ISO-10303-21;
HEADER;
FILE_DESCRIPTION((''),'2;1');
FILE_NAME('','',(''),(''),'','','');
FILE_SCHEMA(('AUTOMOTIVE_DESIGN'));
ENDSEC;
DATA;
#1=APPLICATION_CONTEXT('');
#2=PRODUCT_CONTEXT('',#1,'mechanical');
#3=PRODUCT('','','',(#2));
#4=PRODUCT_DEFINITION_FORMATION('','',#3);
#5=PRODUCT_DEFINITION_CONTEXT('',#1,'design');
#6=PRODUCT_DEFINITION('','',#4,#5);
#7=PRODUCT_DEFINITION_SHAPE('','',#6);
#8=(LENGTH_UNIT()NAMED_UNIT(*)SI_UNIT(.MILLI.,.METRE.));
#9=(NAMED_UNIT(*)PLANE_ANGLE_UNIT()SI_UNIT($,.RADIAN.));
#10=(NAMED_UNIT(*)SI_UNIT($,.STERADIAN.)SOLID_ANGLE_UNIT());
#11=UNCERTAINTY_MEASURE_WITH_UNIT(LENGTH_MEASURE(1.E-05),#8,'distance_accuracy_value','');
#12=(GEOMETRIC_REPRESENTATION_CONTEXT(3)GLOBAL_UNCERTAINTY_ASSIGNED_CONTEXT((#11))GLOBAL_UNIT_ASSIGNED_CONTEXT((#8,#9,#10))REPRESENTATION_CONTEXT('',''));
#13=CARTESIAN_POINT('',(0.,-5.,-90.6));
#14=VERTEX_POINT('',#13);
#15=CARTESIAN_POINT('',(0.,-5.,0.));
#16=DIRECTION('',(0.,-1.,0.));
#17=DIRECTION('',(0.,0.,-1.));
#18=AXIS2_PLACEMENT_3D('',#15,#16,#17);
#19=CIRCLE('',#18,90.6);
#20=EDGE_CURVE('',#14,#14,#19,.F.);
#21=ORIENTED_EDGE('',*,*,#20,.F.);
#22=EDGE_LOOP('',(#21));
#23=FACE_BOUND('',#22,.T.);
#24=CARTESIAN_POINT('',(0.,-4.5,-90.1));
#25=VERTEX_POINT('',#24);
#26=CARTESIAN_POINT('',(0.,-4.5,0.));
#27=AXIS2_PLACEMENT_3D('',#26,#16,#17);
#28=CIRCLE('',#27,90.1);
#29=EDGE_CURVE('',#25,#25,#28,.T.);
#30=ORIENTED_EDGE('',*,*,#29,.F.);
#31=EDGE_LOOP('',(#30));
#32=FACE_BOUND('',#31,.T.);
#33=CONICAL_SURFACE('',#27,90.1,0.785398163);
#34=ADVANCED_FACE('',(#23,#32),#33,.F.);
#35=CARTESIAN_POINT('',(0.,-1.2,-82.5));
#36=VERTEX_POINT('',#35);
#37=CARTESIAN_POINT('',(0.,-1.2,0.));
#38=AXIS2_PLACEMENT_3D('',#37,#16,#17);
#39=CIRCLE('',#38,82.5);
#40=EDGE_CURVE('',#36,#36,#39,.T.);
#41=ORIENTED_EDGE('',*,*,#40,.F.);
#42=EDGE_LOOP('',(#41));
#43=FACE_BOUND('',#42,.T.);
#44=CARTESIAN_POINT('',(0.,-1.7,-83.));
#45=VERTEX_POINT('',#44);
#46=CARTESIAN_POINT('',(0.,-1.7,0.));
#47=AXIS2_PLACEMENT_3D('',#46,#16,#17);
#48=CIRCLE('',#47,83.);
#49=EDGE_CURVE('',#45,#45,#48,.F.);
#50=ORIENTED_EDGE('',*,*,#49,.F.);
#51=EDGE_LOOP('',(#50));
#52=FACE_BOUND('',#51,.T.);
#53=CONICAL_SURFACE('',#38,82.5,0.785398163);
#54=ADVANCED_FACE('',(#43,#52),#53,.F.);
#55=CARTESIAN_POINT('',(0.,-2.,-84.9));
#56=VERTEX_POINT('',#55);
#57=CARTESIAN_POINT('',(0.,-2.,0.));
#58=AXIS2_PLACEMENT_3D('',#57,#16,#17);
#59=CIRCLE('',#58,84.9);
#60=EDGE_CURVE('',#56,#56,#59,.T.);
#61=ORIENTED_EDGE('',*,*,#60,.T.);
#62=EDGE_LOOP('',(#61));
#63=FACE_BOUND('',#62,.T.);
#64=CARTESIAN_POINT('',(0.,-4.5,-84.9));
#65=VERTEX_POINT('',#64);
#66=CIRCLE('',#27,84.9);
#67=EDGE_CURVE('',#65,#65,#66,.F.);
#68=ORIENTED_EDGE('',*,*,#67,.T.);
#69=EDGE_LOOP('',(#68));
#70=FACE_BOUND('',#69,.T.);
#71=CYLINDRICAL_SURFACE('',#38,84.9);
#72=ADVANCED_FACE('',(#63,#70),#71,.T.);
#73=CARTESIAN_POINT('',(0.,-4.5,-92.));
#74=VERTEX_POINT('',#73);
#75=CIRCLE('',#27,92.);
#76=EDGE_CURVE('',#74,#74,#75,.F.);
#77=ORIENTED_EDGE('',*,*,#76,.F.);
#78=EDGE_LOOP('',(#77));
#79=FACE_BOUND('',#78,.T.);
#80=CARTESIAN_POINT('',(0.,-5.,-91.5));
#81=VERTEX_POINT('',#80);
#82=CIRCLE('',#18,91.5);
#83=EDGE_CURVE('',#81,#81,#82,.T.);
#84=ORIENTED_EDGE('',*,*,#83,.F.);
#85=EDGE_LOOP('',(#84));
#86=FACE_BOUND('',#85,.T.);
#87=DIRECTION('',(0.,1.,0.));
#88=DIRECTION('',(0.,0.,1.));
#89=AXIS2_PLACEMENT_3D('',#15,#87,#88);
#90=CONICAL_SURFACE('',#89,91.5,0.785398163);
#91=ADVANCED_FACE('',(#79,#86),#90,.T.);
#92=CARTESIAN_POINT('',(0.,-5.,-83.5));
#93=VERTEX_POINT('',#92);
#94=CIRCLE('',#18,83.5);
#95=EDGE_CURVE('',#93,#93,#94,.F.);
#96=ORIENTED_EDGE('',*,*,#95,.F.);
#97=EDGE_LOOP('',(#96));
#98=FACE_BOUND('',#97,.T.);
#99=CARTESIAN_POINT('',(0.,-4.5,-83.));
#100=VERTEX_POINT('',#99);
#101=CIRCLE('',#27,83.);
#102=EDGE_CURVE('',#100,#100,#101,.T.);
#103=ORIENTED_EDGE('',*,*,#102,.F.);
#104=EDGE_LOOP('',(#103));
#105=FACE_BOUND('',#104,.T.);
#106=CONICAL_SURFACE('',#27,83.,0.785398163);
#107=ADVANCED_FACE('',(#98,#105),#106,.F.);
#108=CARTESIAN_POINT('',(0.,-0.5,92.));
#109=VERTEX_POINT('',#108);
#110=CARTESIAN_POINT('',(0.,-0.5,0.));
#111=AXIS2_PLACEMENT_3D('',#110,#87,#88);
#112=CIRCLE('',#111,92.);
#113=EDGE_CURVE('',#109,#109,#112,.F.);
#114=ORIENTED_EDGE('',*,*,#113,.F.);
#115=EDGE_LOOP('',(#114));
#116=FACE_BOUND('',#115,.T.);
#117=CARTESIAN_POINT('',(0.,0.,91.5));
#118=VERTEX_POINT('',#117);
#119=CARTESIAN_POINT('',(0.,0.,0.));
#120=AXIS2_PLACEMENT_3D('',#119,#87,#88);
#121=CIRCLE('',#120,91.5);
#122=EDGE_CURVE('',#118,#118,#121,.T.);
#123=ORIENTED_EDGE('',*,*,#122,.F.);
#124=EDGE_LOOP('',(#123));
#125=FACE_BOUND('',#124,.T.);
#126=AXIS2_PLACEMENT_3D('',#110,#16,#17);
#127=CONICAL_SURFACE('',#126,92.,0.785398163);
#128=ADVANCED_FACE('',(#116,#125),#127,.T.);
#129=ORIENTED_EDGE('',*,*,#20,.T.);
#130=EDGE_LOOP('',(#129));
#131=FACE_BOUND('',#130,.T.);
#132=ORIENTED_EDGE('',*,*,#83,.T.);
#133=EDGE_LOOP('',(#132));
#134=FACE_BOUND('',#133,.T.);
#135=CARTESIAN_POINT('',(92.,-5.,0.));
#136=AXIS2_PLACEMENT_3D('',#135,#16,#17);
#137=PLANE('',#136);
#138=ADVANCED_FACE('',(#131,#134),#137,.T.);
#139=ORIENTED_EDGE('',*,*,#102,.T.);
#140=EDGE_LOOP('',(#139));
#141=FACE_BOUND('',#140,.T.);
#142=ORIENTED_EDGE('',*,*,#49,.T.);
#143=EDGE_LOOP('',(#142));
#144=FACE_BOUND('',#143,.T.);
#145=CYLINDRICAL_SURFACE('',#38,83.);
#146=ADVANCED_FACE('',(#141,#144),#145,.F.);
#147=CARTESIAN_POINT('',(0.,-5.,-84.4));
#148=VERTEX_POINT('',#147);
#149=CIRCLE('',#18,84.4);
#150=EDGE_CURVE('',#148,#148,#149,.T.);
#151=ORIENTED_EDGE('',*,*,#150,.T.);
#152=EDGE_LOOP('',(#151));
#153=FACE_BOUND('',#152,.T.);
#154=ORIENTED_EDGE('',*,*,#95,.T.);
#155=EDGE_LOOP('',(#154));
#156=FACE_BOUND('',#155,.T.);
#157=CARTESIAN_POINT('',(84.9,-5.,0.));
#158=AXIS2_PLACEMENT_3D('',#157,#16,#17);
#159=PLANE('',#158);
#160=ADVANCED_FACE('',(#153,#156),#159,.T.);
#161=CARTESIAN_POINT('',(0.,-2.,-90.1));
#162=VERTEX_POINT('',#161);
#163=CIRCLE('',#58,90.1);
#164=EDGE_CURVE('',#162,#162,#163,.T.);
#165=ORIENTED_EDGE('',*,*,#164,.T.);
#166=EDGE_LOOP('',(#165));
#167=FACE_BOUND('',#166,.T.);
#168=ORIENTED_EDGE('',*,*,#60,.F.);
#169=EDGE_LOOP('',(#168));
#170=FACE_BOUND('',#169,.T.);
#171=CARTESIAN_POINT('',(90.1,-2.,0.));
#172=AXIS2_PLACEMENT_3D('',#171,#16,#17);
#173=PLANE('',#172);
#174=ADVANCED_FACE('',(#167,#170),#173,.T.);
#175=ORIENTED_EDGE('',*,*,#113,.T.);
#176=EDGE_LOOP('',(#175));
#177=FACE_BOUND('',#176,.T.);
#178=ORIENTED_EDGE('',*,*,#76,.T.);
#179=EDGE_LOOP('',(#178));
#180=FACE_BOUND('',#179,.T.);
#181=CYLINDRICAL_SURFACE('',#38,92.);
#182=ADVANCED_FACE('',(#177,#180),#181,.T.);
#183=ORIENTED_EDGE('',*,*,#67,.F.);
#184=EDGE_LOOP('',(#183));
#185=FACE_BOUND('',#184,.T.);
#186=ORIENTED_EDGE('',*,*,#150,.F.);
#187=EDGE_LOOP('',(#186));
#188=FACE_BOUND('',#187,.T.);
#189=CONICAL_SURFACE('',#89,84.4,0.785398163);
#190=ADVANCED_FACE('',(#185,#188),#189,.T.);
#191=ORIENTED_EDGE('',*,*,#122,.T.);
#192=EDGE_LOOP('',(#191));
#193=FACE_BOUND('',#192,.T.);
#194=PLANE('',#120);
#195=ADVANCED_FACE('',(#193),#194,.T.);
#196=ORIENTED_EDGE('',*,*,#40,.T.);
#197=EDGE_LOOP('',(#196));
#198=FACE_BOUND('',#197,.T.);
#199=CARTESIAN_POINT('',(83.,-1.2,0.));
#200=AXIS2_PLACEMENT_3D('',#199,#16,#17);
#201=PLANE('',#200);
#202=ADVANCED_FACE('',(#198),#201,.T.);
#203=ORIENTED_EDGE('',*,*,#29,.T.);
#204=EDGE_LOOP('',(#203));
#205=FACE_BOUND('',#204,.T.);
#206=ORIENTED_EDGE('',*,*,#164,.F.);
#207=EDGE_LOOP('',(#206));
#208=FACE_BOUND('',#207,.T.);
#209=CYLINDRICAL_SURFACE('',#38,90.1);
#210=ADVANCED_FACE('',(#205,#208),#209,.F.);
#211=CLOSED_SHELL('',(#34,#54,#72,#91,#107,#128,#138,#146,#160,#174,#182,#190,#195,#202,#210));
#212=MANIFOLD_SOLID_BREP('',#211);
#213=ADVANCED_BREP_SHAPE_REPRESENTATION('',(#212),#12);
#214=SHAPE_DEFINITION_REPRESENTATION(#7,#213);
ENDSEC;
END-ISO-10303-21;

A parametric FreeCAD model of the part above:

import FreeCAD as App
import Part
import Sketcher


def edges_at(feature, points):
    """Names of the edges that pass closest to the given points."""
    edges = feature.Shape.Edges
    near = lambda p: min(range(len(edges)), key=lambda i: edges[i].distToShape(Part.Vertex(*p))[0])
    return sorted({f"Edge{near(p) + 1}" for p in points})


def add_polygon(sketch, points):
    """Adds a closed chain of lines whose ends are joined by coincident constraints."""
    first, n = sketch.GeometryCount, len(points)
    for a, b in zip(points, points[1:] + points[:1]):
        sketch.addGeometry(Part.LineSegment(App.Vector(*a, 0), App.Vector(*b, 0)), False)
    for i in range(n):
        sketch.addConstraint(Sketcher.Constraint("Coincident", first + i, 2, first + (i + 1) % n, 1))

doc = App.newDocument("Part")
body = doc.addObject("PartDesign::Body", "Body")

sketch1 = body.newObject("Sketcher::SketchObject", "Sketch")
sketch1.AttachmentSupport = (doc.getObject("XY_Plane"), [""])
sketch1.MapMode = "FlatFace"
add_polygon(sketch1, [(92, 0), (0, 0), (0, -1.2), (83, -1.2), (83, -5), (84.9, -5), (84.9, -2), (90.1, -2), (90.1, -5), (92, -5)])
sketch1.addConstraint([
    Sketcher.Constraint("Horizontal", 0),
    Sketcher.Constraint("Vertical", 1),
    Sketcher.Constraint("Horizontal", 2),
    Sketcher.Constraint("Vertical", 3),
    Sketcher.Constraint("Horizontal", 4),
    Sketcher.Constraint("Vertical", 5),
    Sketcher.Constraint("Horizontal", 6),
    Sketcher.Constraint("Vertical", 7),
    Sketcher.Constraint("Horizontal", 8),
    Sketcher.Constraint("Vertical", 9),
    Sketcher.Constraint("Coincident", 0, 2, -1, 1),
    Sketcher.Constraint("Horizontal", 4, 2, 7, 2),
    Sketcher.Constraint("Equal", 4, 8),
    Sketcher.Constraint("DistanceX", 0, 2, 0, 1, 92.0),
    Sketcher.Constraint("DistanceX", 2, 1, 2, 2, 83.0),
    Sketcher.Constraint("DistanceY", 5, 1, 5, 2, 3.0),
    Sketcher.Constraint("DistanceY", 9, 1, 9, 2, 5.0),
    Sketcher.Constraint("DistanceX", 4, 1, 4, 2, 1.9),
    Sketcher.Constraint("DistanceY", 1, 2, 1, 1, 1.2),
])
revolution = body.newObject("PartDesign::Revolution", "Revolution")
revolution.Profile = sketch1
revolution.ReferenceAxis = (sketch1, ["V_Axis"])
revolution.Angle = 360
doc.recompute()

chamfer = body.newObject("PartDesign::Chamfer", "Chamfer")
chamfer.Base = (revolution, edges_at(revolution, [
    (-92, -5, 0),
    (-92, 0, 0),
    (-83, -1.2, 0),
    (-83, -5, 0),
    (-84.9, -5, 0),
    (-90.1, -5, 0),
]))
chamfer.Size = 0.5

doc.recompute()
